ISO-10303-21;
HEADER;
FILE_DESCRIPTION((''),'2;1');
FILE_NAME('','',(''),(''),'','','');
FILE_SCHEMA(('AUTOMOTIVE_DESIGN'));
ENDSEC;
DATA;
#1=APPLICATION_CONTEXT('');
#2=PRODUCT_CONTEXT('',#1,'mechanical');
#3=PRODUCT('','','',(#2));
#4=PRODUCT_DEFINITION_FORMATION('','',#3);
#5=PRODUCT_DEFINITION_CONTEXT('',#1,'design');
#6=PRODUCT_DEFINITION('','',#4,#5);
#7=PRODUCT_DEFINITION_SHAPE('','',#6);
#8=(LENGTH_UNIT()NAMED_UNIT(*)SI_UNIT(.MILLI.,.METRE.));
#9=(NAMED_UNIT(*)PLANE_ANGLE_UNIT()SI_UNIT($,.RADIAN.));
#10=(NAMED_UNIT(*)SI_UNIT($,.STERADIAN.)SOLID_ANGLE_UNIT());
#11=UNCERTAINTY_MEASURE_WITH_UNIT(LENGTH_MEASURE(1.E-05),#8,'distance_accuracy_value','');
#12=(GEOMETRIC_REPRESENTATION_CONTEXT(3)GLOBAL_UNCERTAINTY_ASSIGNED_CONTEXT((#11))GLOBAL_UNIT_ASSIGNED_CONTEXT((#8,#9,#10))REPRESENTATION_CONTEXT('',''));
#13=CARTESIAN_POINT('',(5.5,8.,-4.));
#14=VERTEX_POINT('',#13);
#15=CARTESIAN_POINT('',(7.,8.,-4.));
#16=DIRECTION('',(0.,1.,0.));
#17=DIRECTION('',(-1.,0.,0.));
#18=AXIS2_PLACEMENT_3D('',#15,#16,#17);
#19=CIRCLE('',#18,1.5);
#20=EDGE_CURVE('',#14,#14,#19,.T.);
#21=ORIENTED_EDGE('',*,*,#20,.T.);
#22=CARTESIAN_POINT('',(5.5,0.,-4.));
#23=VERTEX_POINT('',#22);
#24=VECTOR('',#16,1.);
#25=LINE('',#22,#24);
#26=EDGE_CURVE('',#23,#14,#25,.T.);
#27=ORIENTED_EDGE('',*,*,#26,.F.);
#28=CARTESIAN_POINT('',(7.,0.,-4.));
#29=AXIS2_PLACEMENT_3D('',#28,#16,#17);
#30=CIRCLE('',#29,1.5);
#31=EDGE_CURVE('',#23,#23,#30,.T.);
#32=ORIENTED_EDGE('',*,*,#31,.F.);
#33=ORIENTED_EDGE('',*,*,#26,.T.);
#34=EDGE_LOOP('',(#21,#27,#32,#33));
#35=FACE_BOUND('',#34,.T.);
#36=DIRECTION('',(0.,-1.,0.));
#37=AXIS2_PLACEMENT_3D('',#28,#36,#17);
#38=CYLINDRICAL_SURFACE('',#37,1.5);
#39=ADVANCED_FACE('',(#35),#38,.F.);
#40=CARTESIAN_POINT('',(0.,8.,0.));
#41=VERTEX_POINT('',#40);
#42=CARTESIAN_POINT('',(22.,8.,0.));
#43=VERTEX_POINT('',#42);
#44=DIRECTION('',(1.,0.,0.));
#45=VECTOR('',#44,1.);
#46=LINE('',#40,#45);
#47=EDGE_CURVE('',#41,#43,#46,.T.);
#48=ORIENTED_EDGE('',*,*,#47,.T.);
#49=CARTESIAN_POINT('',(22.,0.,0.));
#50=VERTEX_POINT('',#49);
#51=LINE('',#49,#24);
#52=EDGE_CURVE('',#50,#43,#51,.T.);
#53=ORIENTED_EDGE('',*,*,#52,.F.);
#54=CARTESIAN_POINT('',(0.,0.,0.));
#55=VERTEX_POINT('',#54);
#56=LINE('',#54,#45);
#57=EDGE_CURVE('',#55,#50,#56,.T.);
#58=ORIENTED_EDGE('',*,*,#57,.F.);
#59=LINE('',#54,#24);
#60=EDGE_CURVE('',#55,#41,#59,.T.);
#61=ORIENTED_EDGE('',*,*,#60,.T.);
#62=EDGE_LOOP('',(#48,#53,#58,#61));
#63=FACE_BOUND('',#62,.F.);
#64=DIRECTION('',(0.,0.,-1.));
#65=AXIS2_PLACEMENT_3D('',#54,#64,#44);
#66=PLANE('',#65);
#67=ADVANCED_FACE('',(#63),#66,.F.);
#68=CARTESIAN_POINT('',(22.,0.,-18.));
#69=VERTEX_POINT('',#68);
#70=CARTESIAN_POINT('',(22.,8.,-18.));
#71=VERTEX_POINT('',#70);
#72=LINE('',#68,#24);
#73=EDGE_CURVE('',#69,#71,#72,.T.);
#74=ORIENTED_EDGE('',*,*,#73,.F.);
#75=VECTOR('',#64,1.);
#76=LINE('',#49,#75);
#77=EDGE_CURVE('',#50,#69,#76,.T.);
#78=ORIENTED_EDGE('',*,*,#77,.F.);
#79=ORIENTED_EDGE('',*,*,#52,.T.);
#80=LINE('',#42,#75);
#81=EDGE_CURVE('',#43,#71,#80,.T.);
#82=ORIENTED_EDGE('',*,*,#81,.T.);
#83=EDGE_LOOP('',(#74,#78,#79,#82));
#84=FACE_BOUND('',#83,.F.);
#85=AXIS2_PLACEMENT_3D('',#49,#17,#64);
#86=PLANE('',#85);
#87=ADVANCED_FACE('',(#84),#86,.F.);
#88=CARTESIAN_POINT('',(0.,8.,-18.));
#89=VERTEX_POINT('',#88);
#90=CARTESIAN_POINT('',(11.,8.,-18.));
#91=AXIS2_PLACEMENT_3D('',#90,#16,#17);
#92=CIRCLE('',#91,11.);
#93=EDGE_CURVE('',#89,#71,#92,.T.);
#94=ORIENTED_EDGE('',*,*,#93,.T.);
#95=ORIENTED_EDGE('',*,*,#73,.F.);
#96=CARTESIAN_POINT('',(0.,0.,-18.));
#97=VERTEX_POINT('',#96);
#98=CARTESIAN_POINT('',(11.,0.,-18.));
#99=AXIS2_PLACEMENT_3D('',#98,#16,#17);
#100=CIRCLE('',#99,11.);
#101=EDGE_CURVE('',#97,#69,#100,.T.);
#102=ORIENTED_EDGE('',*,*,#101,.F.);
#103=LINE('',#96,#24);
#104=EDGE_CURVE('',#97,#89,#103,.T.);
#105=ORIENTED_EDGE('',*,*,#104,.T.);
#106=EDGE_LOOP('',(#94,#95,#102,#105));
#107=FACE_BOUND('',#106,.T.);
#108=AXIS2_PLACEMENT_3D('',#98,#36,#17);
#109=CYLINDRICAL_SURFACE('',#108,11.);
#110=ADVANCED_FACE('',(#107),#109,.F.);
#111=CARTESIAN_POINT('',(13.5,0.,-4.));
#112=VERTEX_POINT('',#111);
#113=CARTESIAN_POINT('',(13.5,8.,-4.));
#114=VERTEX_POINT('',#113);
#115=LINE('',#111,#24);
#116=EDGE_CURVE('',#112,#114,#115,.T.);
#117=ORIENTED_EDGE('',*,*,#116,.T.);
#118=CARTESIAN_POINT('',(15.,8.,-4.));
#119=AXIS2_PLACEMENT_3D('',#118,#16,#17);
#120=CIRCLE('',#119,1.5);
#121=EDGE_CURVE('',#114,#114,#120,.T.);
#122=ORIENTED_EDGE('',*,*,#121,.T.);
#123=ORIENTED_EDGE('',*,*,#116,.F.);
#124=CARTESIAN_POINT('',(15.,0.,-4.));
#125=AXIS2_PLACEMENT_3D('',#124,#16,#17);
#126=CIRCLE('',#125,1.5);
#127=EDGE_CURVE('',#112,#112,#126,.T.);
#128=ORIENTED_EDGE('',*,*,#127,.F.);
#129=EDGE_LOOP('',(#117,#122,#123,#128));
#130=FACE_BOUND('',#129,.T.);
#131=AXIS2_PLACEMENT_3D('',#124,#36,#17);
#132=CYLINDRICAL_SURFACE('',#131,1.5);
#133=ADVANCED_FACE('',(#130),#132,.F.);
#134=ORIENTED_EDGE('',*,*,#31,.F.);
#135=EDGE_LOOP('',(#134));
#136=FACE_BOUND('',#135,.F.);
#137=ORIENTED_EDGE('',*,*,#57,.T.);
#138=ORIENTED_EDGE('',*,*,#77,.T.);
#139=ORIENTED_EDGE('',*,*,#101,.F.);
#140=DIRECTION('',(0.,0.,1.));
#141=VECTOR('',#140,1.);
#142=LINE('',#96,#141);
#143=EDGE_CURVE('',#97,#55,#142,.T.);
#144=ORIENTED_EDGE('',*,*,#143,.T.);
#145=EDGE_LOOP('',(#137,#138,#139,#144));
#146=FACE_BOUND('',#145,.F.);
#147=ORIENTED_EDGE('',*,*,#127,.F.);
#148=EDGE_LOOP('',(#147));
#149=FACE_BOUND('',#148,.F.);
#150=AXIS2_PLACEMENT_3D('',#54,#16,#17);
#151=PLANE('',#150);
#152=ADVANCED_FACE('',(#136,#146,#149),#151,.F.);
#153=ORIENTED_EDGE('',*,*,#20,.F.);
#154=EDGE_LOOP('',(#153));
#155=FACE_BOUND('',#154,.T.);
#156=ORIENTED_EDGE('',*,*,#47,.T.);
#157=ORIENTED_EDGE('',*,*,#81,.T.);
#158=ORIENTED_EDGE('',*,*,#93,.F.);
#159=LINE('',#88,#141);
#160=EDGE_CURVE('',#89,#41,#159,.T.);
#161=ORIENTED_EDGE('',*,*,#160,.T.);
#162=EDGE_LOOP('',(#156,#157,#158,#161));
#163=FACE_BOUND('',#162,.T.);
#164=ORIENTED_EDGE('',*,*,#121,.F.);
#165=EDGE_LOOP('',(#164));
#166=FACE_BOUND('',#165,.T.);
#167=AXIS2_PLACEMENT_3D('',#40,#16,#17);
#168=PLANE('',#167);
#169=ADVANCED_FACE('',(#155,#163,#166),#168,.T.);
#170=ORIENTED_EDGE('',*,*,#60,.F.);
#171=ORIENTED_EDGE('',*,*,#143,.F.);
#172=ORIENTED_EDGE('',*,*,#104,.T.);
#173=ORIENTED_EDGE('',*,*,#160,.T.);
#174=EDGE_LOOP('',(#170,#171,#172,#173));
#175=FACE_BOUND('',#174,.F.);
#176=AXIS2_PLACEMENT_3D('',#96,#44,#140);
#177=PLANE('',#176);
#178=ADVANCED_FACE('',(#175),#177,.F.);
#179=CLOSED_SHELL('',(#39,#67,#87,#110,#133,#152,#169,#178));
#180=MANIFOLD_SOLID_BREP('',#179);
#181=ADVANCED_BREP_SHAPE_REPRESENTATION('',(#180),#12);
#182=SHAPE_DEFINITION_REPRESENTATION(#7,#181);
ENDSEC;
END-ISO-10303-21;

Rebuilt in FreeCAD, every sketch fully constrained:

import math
import FreeCAD as App
import Part
import Sketcher

V = App.Vector
Q = App.Units.Quantity

doc = App.newDocument("Part")
params = doc.addObject("Spreadsheet::Sheet", "Params")
for row, (alias, value) in enumerate([
    ("sketch1_diameter", "3 mm"),
    ("sketch1_radius", "11 mm"),
    ("sketch1_height", "18 mm"),
    ("pad1_length", "8 mm"),
], start=1):
    params.set(f"A{row}", alias)
    params.set(f"B{row}", "=" + value)
    params.setAlias(f"B{row}", alias)

body = doc.addObject("PartDesign::Body", "Body")

# Sketch on XZ plane
sketch1 = body.newObject("Sketcher::SketchObject", "Sketch")
sketch1.AttachmentSupport = (doc.getObject("XZ_Plane"), [""])
sketch1.MapMode = "FlatFace"
sketch1.addGeometry([
    Part.LineSegment(V(0, -18, 0), V(0, 0, 0)),  # 0
    Part.LineSegment(V(0, 0, 0), V(22, 0, 0)),  # 1
    Part.LineSegment(V(22, 0, 0), V(22, -18, 0)),  # 2
    Part.ArcOfCircle(Part.Circle(V(11, -18, 0), V(0, 0, 1), 11), math.radians(0), math.radians(180)),  # 3
    Part.Circle(V(15, -4, 0), V(0, 0, 1), 1.5),  # 4
    Part.Circle(V(7, -4, 0), V(0, 0, 1), 1.5),  # 5
], False)
sketch1.addConstraint([
    Sketcher.Constraint("Coincident", 0, 2, 1, 1),
    Sketcher.Constraint("Coincident", 1, 2, 2, 1),
    Sketcher.Constraint("Tangent", 2, 2, 3, 1),
    Sketcher.Constraint("Tangent", 3, 2, 0, 1),
    Sketcher.Constraint("Vertical", 0),
    Sketcher.Constraint("Horizontal", 1),
    Sketcher.Constraint("Vertical", 2),
    Sketcher.Constraint("Coincident", 0, 2, -1, 1),
    Sketcher.Constraint("Equal", 4, 5),
    Sketcher.Constraint("Horizontal", 4, 3, 5, 3),
    Sketcher.Constraint("Diameter", 4, Q("3 mm")),
    Sketcher.Constraint("DistanceY", 4, 3, -1, 1, Q("4 mm")),
    Sketcher.Constraint("DistanceX", -1, 1, 5, 3, Q("7 mm")),
    Sketcher.Constraint("Radius", 3, Q("11 mm")),
    Sketcher.Constraint("DistanceX", 3, 3, 4, 3, Q("4 mm")),
    Sketcher.Constraint("DistanceY", 0, 1, 0, 2, Q("18 mm")),
])
sketch1.setExpression("Constraints[10]", "Params.sketch1_diameter")
sketch1.setExpression("Constraints[13]", "Params.sketch1_radius")
sketch1.setExpression("Constraints[15]", "Params.sketch1_height")
pad1 = body.newObject("PartDesign::Pad", "Pad")
pad1.Profile = sketch1
pad1.setExpression("Length", "Params.pad1_length")
pad1.Reversed = True

doc.recompute()
